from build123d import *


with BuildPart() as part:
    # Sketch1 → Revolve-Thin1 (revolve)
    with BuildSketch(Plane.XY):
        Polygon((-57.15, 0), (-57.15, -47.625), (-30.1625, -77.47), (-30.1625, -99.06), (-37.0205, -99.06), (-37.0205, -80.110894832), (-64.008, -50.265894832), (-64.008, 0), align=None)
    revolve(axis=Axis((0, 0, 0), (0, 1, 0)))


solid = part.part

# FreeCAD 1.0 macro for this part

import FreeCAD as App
import Part
import Sketcher
from FreeCAD import Vector
Q = App.Units.Quantity

doc = App.newDocument("Part")
body = doc.addObject("PartDesign::Body", "Body")

sketch1 = body.newObject("Sketcher::SketchObject", "Sketch")
sketch1.AttachmentSupport = (doc.getObject("XY_Plane"), [""])
sketch1.MapMode = "FlatFace"
sketch1.addGeometry(Part.LineSegment(Vector(-57, -48, 0), Vector(-57, 0, 0)), False)
sketch1.addGeometry(Part.LineSegment(Vector(-57, 0, 0), Vector(-64, 0, 0)), False)
sketch1.addGeometry(Part.LineSegment(Vector(-64, 0, 0), Vector(-64, -50, 0)), False)
sketch1.addGeometry(Part.LineSegment(Vector(-64, -50, 0), Vector(-37, -80, 0)), False)
sketch1.addGeometry(Part.LineSegment(Vector(-37, -80, 0), Vector(-37, -99, 0)), False)
sketch1.addGeometry(Part.LineSegment(Vector(-37, -99, 0), Vector(-30, -99, 0)), False)
sketch1.addGeometry(Part.LineSegment(Vector(-30, -99, 0), Vector(-30, -77, 0)), False)
sketch1.addGeometry(Part.LineSegment(Vector(-30, -77, 0), Vector(-57, -48, 0)), False)
sketch1.addConstraint(Sketcher.Constraint("Coincident", 0, 2, 1, 1))
sketch1.addConstraint(Sketcher.Constraint("Coincident", 1, 2, 2, 1))
sketch1.addConstraint(Sketcher.Constraint("Coincident", 2, 2, 3, 1))
sketch1.addConstraint(Sketcher.Constraint("Coincident", 3, 2, 4, 1))
sketch1.addConstraint(Sketcher.Constraint("Coincident", 4, 2, 5, 1))
sketch1.addConstraint(Sketcher.Constraint("Coincident", 5, 2, 6, 1))
sketch1.addConstraint(Sketcher.Constraint("Coincident", 6, 2, 7, 1))
sketch1.addConstraint(Sketcher.Constraint("Coincident", 7, 2, 0, 1))
sketch1.addConstraint(Sketcher.Constraint("Vertical", 0))
sketch1.addConstraint(Sketcher.Constraint("Horizontal", 1))
sketch1.addConstraint(Sketcher.Constraint("Vertical", 2))
sketch1.addConstraint(Sketcher.Constraint("Vertical", 4))
sketch1.addConstraint(Sketcher.Constraint("Horizontal", 5))
sketch1.addConstraint(Sketcher.Constraint("Vertical", 6))
sketch1.addConstraint(Sketcher.Constraint("PointOnObject", 0, 2, -1))
sketch1.addConstraint(Sketcher.Constraint("Parallel", 3, 7))
sketch1.addConstraint(Sketcher.Constraint("Equal", 1, 5))
sketch1.addConstraint(Sketcher.Constraint("DistanceX", 1, 2, 1, 1, Q("0.27 in")))
sketch1.addConstraint(Sketcher.Constraint("DistanceY", 6, 1, 6, 2, Q("0.85 in")))
sketch1.addConstraint(Sketcher.Constraint("DistanceY", 4, 2, -1, 1, Q("3.9 in")))
sketch1.addConstraint(Sketcher.Constraint("DistanceY", 0, 1, 0, 2, Q("1.875 in")))
sketch1.addConstraint(Sketcher.Constraint("DistanceX", 0, 2, -1, 1, Q("2.25 in")))
sketch1.addConstraint(Sketcher.Constraint("DistanceX", 5, 2, -1, 1, Q("1.1875 in")))
sketch1.addConstraint(Sketcher.Constraint("DistanceY", 2, 2, 2, 1, 50.265895))
revolution = body.newObject("PartDesign::Revolution", "Revolution")
revolution.Profile = sketch1
revolution.ReferenceAxis = (sketch1, ["V_Axis"])
revolution.Angle = 360

doc.recompute()
